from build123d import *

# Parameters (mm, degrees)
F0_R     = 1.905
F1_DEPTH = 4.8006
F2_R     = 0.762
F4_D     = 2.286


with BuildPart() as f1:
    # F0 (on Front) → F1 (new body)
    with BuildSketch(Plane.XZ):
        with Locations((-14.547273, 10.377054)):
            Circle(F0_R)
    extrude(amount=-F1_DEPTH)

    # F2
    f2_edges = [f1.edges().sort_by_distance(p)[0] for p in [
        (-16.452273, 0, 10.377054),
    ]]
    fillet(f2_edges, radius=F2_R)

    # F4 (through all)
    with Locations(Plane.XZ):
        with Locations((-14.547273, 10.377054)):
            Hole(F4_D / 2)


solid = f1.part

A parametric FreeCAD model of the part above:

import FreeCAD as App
import Part
import Sketcher
from FreeCAD import Vector
Q = App.Units.Quantity


def edges_at(feature, points):
    """Names of the edges that pass closest to the given points."""
    edges = feature.Shape.Edges
    near = lambda p: min(range(len(edges)), key=lambda i: edges[i].distToShape(Part.Vertex(*p))[0])
    return sorted({f"Edge{near(p) + 1}" for p in points})

doc = App.newDocument("Part")
body = doc.addObject("PartDesign::Body", "Body")

sketch1 = body.newObject("Sketcher::SketchObject", "Sketch")
sketch1.AttachmentSupport = (doc.getObject("XZ_Plane"), [""])
sketch1.MapMode = "FlatFace"
sketch1.addGeometry(Part.Circle(Vector(-14.5, 10.4, 0), Vector(0, 0, 1), 1.9), False)
sketch1.addConstraint([
    Sketcher.Constraint("Diameter", 0, Q("0.15 in")),
    Sketcher.Constraint("DistanceX", 0, 3, -1, 1, 14.547273),
    Sketcher.Constraint("DistanceY", -1, 1, 0, 3, 10.377054),
])
pad1 = body.newObject("PartDesign::Pad", "Pad")
pad1.Profile = sketch1
pad1.Length = Q("0.189 in")
pad1.Reversed = True
doc.recompute()

fillet = body.newObject("PartDesign::Fillet", "Fillet")
fillet.Base = (pad1, edges_at(pad1, [(-16.452, 0, 10.377)]))
fillet.Radius = Q("0.03 in")

sketch2 = body.newObject("Sketcher::SketchObject", "Sketch001")
sketch2.AttachmentSupport = (doc.getObject("XZ_Plane"), [""])
sketch2.MapMode = "FlatFace"
sketch2.addGeometry(Part.Circle(Vector(-14.5, 10.4, 0), Vector(0, 0, 1), 1.1), False)
sketch2.addConstraint([
    Sketcher.Constraint("Diameter", 0, Q("0.09 in")),
    Sketcher.Constraint("DistanceX", 0, 3, -1, 1, 14.547273),
    Sketcher.Constraint("DistanceY", -1, 1, 0, 3, 10.377054),
])
doc.recompute()
hole = body.newObject("PartDesign::Hole", "Hole")
hole.Profile = sketch2
hole.ThreadType = "None"
hole.Diameter = Q("0.09 in")
hole.DepthType = "ThroughAll"

doc.recompute()
